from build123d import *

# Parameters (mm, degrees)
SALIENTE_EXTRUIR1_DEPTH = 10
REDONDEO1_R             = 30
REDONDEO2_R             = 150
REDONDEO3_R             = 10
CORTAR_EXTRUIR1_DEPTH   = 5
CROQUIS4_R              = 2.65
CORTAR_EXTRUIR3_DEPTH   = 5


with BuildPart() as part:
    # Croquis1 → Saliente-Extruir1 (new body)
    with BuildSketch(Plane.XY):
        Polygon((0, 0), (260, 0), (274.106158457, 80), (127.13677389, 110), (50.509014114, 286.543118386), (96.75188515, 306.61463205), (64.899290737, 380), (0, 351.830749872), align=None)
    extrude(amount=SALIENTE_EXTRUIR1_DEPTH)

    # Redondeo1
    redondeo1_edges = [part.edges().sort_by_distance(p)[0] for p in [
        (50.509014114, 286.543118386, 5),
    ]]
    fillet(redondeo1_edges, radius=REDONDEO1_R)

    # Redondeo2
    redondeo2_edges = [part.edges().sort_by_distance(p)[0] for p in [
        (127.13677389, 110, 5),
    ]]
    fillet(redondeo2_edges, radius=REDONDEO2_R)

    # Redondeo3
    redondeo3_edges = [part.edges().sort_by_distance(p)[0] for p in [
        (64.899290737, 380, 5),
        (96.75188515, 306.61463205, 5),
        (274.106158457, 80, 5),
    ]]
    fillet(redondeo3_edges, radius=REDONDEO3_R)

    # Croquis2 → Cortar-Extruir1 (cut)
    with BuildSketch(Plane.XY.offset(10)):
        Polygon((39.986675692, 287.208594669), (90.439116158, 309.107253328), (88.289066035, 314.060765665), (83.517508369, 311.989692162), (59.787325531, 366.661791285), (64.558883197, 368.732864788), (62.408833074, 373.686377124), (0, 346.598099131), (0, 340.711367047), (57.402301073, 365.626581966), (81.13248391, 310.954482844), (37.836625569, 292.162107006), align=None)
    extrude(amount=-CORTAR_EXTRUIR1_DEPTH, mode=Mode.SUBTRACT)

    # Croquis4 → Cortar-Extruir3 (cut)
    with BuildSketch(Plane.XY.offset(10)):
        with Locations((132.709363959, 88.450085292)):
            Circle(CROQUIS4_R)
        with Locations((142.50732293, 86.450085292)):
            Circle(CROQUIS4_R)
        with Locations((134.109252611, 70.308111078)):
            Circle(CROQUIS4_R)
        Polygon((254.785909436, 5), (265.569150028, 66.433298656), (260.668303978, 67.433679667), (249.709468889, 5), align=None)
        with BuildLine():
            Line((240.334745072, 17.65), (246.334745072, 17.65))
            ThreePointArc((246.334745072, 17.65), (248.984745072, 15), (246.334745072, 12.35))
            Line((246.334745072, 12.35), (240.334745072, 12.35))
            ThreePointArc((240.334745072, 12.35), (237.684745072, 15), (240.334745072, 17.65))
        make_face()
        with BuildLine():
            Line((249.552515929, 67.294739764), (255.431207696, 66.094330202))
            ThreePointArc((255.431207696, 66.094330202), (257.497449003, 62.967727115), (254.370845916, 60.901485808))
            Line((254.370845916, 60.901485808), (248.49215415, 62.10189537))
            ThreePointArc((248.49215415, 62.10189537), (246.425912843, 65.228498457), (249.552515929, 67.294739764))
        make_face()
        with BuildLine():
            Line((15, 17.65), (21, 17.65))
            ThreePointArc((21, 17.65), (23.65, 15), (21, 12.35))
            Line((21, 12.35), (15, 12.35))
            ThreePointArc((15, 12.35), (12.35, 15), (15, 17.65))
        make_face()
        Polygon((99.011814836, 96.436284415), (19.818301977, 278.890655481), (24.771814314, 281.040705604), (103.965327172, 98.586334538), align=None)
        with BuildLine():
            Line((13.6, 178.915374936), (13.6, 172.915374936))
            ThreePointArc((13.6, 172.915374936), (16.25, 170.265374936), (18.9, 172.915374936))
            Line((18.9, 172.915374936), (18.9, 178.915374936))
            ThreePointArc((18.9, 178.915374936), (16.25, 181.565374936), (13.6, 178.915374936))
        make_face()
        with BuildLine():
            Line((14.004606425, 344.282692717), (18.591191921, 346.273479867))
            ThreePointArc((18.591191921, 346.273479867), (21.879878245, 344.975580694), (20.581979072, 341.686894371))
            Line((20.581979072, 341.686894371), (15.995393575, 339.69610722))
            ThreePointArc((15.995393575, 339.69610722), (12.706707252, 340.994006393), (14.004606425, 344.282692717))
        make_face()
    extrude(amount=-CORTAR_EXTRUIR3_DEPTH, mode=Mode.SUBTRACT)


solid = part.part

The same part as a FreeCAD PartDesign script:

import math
import FreeCAD as App
import Part
import Sketcher
from FreeCAD import Vector
Q = App.Units.Quantity


def edges_at(feature, points):
    """Names of the edges that pass closest to the given points."""
    edges = feature.Shape.Edges
    near = lambda p: min(range(len(edges)), key=lambda i: edges[i].distToShape(Part.Vertex(*p))[0])
    return sorted({f"Edge{near(p) + 1}" for p in points})

doc = App.newDocument("Part")
body = doc.addObject("PartDesign::Body", "Body")

# Sketch on XY plane
sketch1 = body.newObject("Sketcher::SketchObject", "Sketch")
sketch1.AttachmentSupport = (doc.getObject("XY_Plane"), [""])
sketch1.MapMode = "FlatFace"
sketch1.addGeometry([
    Part.LineSegment(Vector(0, 0, 0), Vector(260, 0, 0)),  # 0
    Part.LineSegment(Vector(260, 0, 0), Vector(274, 80, 0)),  # 1
    Part.LineSegment(Vector(274, 80, 0), Vector(127, 110, 0)),  # 2
    Part.LineSegment(Vector(127, 110, 0), Vector(51, 287, 0)),  # 3
    Part.LineSegment(Vector(51, 287, 0), Vector(97, 307, 0)),  # 4
    Part.LineSegment(Vector(97, 307, 0), Vector(65, 380, 0)),  # 5
    Part.LineSegment(Vector(65, 380, 0), Vector(0, 352, 0)),  # 6
    Part.LineSegment(Vector(0, 352, 0), Vector(0, 0, 0)),  # 7
], False)
sketch1.addConstraint([
    Sketcher.Constraint("Coincident", 0, 2, 1, 1),
    Sketcher.Constraint("Coincident", 1, 2, 2, 1),
    Sketcher.Constraint("Coincident", 2, 2, 3, 1),
    Sketcher.Constraint("Coincident", 3, 2, 4, 1),
    Sketcher.Constraint("Coincident", 4, 2, 5, 1),
    Sketcher.Constraint("Coincident", 5, 2, 6, 1),
    Sketcher.Constraint("Coincident", 6, 2, 7, 1),
    Sketcher.Constraint("Coincident", 7, 2, 0, 1),
    Sketcher.Constraint("Horizontal", 0),
    Sketcher.Constraint("Vertical", 7),
    Sketcher.Constraint("Coincident", 7, 2, -1, 1),
    Sketcher.Constraint("Perpendicular", 3, 4),
    Sketcher.Constraint("Perpendicular", 4, 5),
    Sketcher.Constraint("Perpendicular", 5, 6),
    Sketcher.Constraint("DistanceX", 0, 1, 0, 2, 260.0),
    Sketcher.Constraint("Angle", 1, Q("80 deg")),
    Sketcher.Constraint("Distance", 2, 150.0),
    Sketcher.Constraint("Distance", 5, 80.0),
    Sketcher.Constraint("DistanceY", -1, 1, 1, 2, 80.0),
    Sketcher.Constraint("DistanceY", -1, 1, 2, 2, 110.0),
    Sketcher.Constraint("DistanceY", -1, 1, 5, 2, 380.0),
    Sketcher.Constraint("Distance", 4, 50.410999),
    Sketcher.Constraint("DistanceY", 7, 2, 7, 1, 351.83075),
])
pad1 = body.newObject("PartDesign::Pad", "Pad")
pad1.Profile = sketch1
pad1.Length = 10
doc.recompute()

fillet = body.newObject("PartDesign::Fillet", "Fillet")
fillet.Base = (pad1, edges_at(pad1, [(50.509, 286.543, 5)]))
fillet.Radius = 30
doc.recompute()

fillet2 = body.newObject("PartDesign::Fillet", "Fillet001")
fillet2.Base = (fillet, edges_at(fillet, [(127.137, 110, 5)]))
fillet2.Radius = 150
doc.recompute()

fillet3 = body.newObject("PartDesign::Fillet", "Fillet002")
fillet3.Base = (fillet2, edges_at(fillet2, [(64.899, 380, 5), (96.752, 306.615, 5), (274.106, 80, 5)]))
fillet3.Radius = 10

# Sketch on XY plane
sketch2 = body.newObject("Sketcher::SketchObject", "Sketch001")
sketch2.AttachmentSupport = (doc.getObject("XY_Plane"), [""])
sketch2.MapMode = "FlatFace"
sketch2.AttachmentOffset = App.Placement(Vector(0, 0, 10), App.Rotation())
sketch2.addGeometry([
    Part.LineSegment(Vector(40, 287, 0), Vector(90, 309, 0)),  # 0
    Part.LineSegment(Vector(90, 309, 0), Vector(88, 314, 0)),  # 1
    Part.LineSegment(Vector(88, 314, 0), Vector(84, 312, 0)),  # 2
    Part.LineSegment(Vector(84, 312, 0), Vector(60, 367, 0)),  # 3
    Part.LineSegment(Vector(60, 367, 0), Vector(65, 369, 0)),  # 4
    Part.LineSegment(Vector(65, 369, 0), Vector(62, 374, 0)),  # 5
    Part.LineSegment(Vector(62, 374, 0), Vector(0, 347, 0)),  # 6
    Part.LineSegment(Vector(0, 347, 0), Vector(0, 341, 0)),  # 7
    Part.LineSegment(Vector(0, 341, 0), Vector(57, 366, 0)),  # 8
    Part.LineSegment(Vector(57, 366, 0), Vector(81, 311, 0)),  # 9
    Part.LineSegment(Vector(81, 311, 0), Vector(38, 292, 0)),  # 10
    Part.LineSegment(Vector(38, 292, 0), Vector(40, 287, 0)),  # 11
], False)
sketch2.addConstraint([
    Sketcher.Constraint("Coincident", 0, 2, 1, 1),
    Sketcher.Constraint("Coincident", 1, 2, 2, 1),
    Sketcher.Constraint("Coincident", 2, 2, 3, 1),
    Sketcher.Constraint("Coincident", 3, 2, 4, 1),
    Sketcher.Constraint("Coincident", 4, 2, 5, 1),
    Sketcher.Constraint("Coincident", 5, 2, 6, 1),
    Sketcher.Constraint("Coincident", 6, 2, 7, 1),
    Sketcher.Constraint("Coincident", 7, 2, 8, 1),
    Sketcher.Constraint("Coincident", 8, 2, 9, 1),
    Sketcher.Constraint("Coincident", 9, 2, 10, 1),
    Sketcher.Constraint("Coincident", 10, 2, 11, 1),
    Sketcher.Constraint("Coincident", 11, 2, 0, 1),
    Sketcher.Constraint("Vertical", 7),
    Sketcher.Constraint("PointOnObject", 6, 2, -2),
    Sketcher.Constraint("Perpendicular", 0, 1),
    Sketcher.Constraint("Perpendicular", 1, 2),
    Sketcher.Constraint("Perpendicular", 2, 3),
    Sketcher.Constraint("Perpendicular", 3, 4),
    Sketcher.Constraint("Perpendicular", 4, 5),
    Sketcher.Constraint("Perpendicular", 5, 6),
    Sketcher.Constraint("Parallel", 6, 8),
    Sketcher.Constraint("Perpendicular", 8, 9),
    Sketcher.Constraint("Perpendicular", 9, 10),
    Sketcher.Constraint("Perpendicular", 10, 11),
    Sketcher.Constraint("Equal", 2, 4),
    Sketcher.Constraint("Equal", 1, 5),
    Sketcher.Constraint("Equal", 3, 9),
    Sketcher.Constraint("Equal", 5, 11),
    Sketcher.Constraint("Distance", 0, 55.0),
    Sketcher.Constraint("Distance", 1, 5.4),
    Sketcher.Constraint("Distance", 3, 59.6),
    Sketcher.Constraint("DistanceY", -1, 1, 6, 2, 346.598099),
    Sketcher.Constraint("DistanceX", -1, 1, 8, 2, 57.402301),
    Sketcher.Constraint("DistanceY", 2, 2, 3, 2, 54.672099),
    Sketcher.Constraint("Distance", 6, 68.034089),
    Sketcher.Constraint("DistanceX", -1, 1, 2, 2, 83.517508),
])
pocket1 = body.newObject("PartDesign::Pocket", "Pocket")
pocket1.Profile = sketch2
pocket1.Length = 5

# Sketch on XY plane
sketch3 = body.newObject("Sketcher::SketchObject", "Sketch002")
sketch3.AttachmentSupport = (doc.getObject("XY_Plane"), [""])
sketch3.MapMode = "FlatFace"
sketch3.AttachmentOffset = App.Placement(Vector(0, 0, 10), App.Rotation())
sketch3.addGeometry([
    Part.Circle(Vector(132.7, 88.5, 0), Vector(0, 0, 1), 2.6),  # 0
    Part.Circle(Vector(142.5, 86.5, 0), Vector(0, 0, 1), 2.6),  # 1
    Part.Circle(Vector(134.1, 70.3, 0), Vector(0, 0, 1), 2.6),  # 2
    Part.LineSegment(Vector(254.8, 5, 0), Vector(265.6, 66.4, 0)),  # 3
    Part.LineSegment(Vector(265.6, 66.4, 0), Vector(260.7, 67.4, 0)),  # 4
    Part.LineSegment(Vector(260.7, 67.4, 0), Vector(249.7, 5, 0)),  # 5
    Part.LineSegment(Vector(249.7, 5, 0), Vector(254.8, 5, 0)),  # 6
    Part.LineSegment(Vector(246.3, 17.6, 0), Vector(240.3, 17.6, 0)),  # 7
    Part.ArcOfCircle(Part.Circle(Vector(240.3, 15, 0), Vector(0, 0, 1), 2.6), math.radians(90), math.radians(270)),  # 8
    Part.LineSegment(Vector(240.3, 12.3, 0), Vector(246.3, 12.3, 0)),  # 9
    Part.ArcOfCircle(Part.Circle(Vector(246.3, 15, 0), Vector(0, 0, 1), 2.6), math.radians(-90), math.radians(90)),  # 10
    Part.LineSegment(Vector(255.4, 66.1, 0), Vector(249.6, 67.3, 0)),  # 11
    Part.ArcOfCircle(Part.Circle(Vector(249, 64.7, 0), Vector(0, 0, 1), 2.6), math.radians(78), math.radians(258)),  # 12
    Part.LineSegment(Vector(248.5, 62.1, 0), Vector(254.4, 60.9, 0)),  # 13
    Part.ArcOfCircle(Part.Circle(Vector(254.9, 63.5, 0), Vector(0, 0, 1), 2.6), math.radians(-102), math.radians(78)),  # 14
    Part.LineSegment(Vector(21, 17.6, 0), Vector(15, 17.6, 0)),  # 15
    Part.ArcOfCircle(Part.Circle(Vector(15, 15, 0), Vector(0, 0, 1), 2.6), math.radians(90), math.radians(270)),  # 16
    Part.LineSegment(Vector(15, 12.3, 0), Vector(21, 12.3, 0)),  # 17
    Part.ArcOfCircle(Part.Circle(Vector(21, 15, 0), Vector(0, 0, 1), 2.6), math.radians(-90), math.radians(90)),  # 18
    Part.LineSegment(Vector(19.8, 278.9, 0), Vector(99, 96.4, 0)),  # 19
    Part.LineSegment(Vector(99, 96.4, 0), Vector(104, 98.6, 0)),  # 20
    Part.LineSegment(Vector(104, 98.6, 0), Vector(24.8, 281, 0)),  # 21
    Part.LineSegment(Vector(24.8, 281, 0), Vector(19.8, 278.9, 0)),  # 22
    Part.LineSegment(Vector(13.6, 178.9, 0), Vector(13.6, 172.9, 0)),  # 23
    Part.ArcOfCircle(Part.Circle(Vector(16.2, 172.9, 0), Vector(0, 0, 1), 2.6), math.radians(180), math.radians(360)),  # 24
    Part.LineSegment(Vector(18.9, 172.9, 0), Vector(18.9, 178.9, 0)),  # 25
    Part.ArcOfCircle(Part.Circle(Vector(16.2, 178.9, 0), Vector(0, 0, 1), 2.6), math.radians(0), math.radians(180)),  # 26
    Part.LineSegment(Vector(18.6, 346.3, 0), Vector(14, 344.3, 0)),  # 27
    Part.ArcOfCircle(Part.Circle(Vector(15, 342, 0), Vector(0, 0, 1), 2.5), math.radians(113), math.radians(293)),  # 28
    Part.LineSegment(Vector(16, 339.7, 0), Vector(20.6, 341.7, 0)),  # 29
    Part.ArcOfCircle(Part.Circle(Vector(19.6, 344, 0), Vector(0, 0, 1), 2.5), math.radians(-67), math.radians(113)),  # 30
], False)
sketch3.addConstraint([
    Sketcher.Constraint("Coincident", 3, 2, 4, 1),
    Sketcher.Constraint("Coincident", 4, 2, 5, 1),
    Sketcher.Constraint("Coincident", 5, 2, 6, 1),
    Sketcher.Constraint("Coincident", 6, 2, 3, 1),
    Sketcher.Constraint("Tangent", 7, 2, 8, 1),
    Sketcher.Constraint("Tangent", 8, 2, 9, 1),
    Sketcher.Constraint("Tangent", 9, 2, 10, 1),
    Sketcher.Constraint("Tangent", 10, 2, 7, 1),
    Sketcher.Constraint("Tangent", 11, 2, 12, 1),
    Sketcher.Constraint("Tangent", 12, 2, 13, 1),
    Sketcher.Constraint("Tangent", 13, 2, 14, 1),
    Sketcher.Constraint("Tangent", 14, 2, 11, 1),
    Sketcher.Constraint("Tangent", 15, 2, 16, 1),
    Sketcher.Constraint("Tangent", 16, 2, 17, 1),
    Sketcher.Constraint("Tangent", 17, 2, 18, 1),
    Sketcher.Constraint("Tangent", 18, 2, 15, 1),
    Sketcher.Constraint("Coincident", 19, 2, 20, 1),
    Sketcher.Constraint("Coincident", 20, 2, 21, 1),
    Sketcher.Constraint("Coincident", 21, 2, 22, 1),
    Sketcher.Constraint("Coincident", 22, 2, 19, 1),
    Sketcher.Constraint("Tangent", 23, 2, 24, 1),
    Sketcher.Constraint("Tangent", 24, 2, 25, 1),
    Sketcher.Constraint("Tangent", 25, 2, 26, 1),
    Sketcher.Constraint("Tangent", 26, 2, 23, 1),
    Sketcher.Constraint("Tangent", 27, 2, 28, 1),
    Sketcher.Constraint("Tangent", 28, 2, 29, 1),
    Sketcher.Constraint("Tangent", 29, 2, 30, 1),
    Sketcher.Constraint("Tangent", 30, 2, 27, 1),
    Sketcher.Constraint("Horizontal", 6),
    Sketcher.Constraint("Horizontal", 7),
    Sketcher.Constraint("Horizontal", 9),
    Sketcher.Constraint("Horizontal", 15),
    Sketcher.Constraint("Horizontal", 17),
    Sketcher.Constraint("Vertical", 23),
    Sketcher.Constraint("Vertical", 25),
    Sketcher.Constraint("Equal", 0, 1),
    Sketcher.Constraint("Equal", 1, 2),
    Sketcher.Constraint("Equal", 2, 8),
    Sketcher.Constraint("Equal", 10, 12),
    Sketcher.Constraint("Equal", 12, 14),
    Sketcher.Constraint("Equal", 14, 16),
    Sketcher.Constraint("Equal", 18, 24),
    Sketcher.Constraint("Equal", 28, 30),
    Sketcher.Constraint("Parallel", 3, 5),
    Sketcher.Constraint("Perpendicular", 19, 20),
    Sketcher.Constraint("Perpendicular", 20, 21),
    Sketcher.Constraint("Perpendicular", 21, 22),
    Sketcher.Constraint("Parallel", 22, 27),
    Sketcher.Constraint("Horizontal", 10, 3, 16, 3),
    Sketcher.Constraint("Vertical", 16, 3, 28, 3),
    Sketcher.Constraint("Equal", 9, 15),
    Sketcher.Constraint("Equal", 17, 23),
    Sketcher.Constraint("Diameter", 0, 5.3),
    Sketcher.Constraint("Radius", 28, 2.5),
    Sketcher.Constraint("DistanceX", 7, 2, 7, 1, 6.0),
    Sketcher.Constraint("Distance", 11, 6.0),
    Sketcher.Constraint("Distance", 27, 5.0),
    Sketcher.Constraint("DistanceY", -1, 1, 8, 3, 15.0),
    Sketcher.Constraint("DistanceX", -1, 1, 16, 3, 15.0),
    Sketcher.Constraint("DistanceY", -1, 1, 5, 2, 5.0),
    Sketcher.Constraint("DistanceY", 1, 3, 0, 3, 2.0),
    Sketcher.Constraint("Distance", 19, 198.9),
    Sketcher.Constraint("Distance", 20, 5.4),
    Sketcher.Constraint("DistanceX", -1, 1, 23, 2, 13.6),
    Sketcher.Constraint("DistanceX", 6, 1, 6, 2, 5.076441),
    Sketcher.Constraint("DistanceY", -1, 1, 28, 3, 341.9894),
    Sketcher.Constraint("DistanceY", -1, 1, 3, 2, 66.433299),
    Sketcher.Constraint("DistanceX", -1, 1, 22, 2, 19.818302),
    Sketcher.Constraint("DistanceY", 0, 3, 30, 3, 255.530102),
    Sketcher.Constraint("DistanceY", 0, 3, 19, 2, 7.986199),
    Sketcher.Constraint("DistanceY", 21, 2, 28, 2, 58.655402),
    Sketcher.Constraint("DistanceY", -1, 1, 2, 3, 70.308111),
    Sketcher.Constraint("DistanceY", -1, 1, 14, 3, 63.497908),
    Sketcher.Constraint("DistanceX", -1, 1, 3, 2, 265.56915),
    Sketcher.Constraint("DistanceY", -1, 1, 4, 2, 67.43368),
    Sketcher.Constraint("DistanceX", -1, 1, 5, 2, 249.709469),
    Sketcher.Constraint("DistanceY", -1, 1, 11, 2, 67.29474),
    Sketcher.Constraint("DistanceX", 0, 3, 1, 3, 9.797959),
    Sketcher.Constraint("DistanceX", 2, 3, 1, 3, 8.39807),
    Sketcher.Constraint("DistanceX", 0, 3, 8, 3, 107.625381),
    Sketcher.Constraint("DistanceX", 10, 3, 12, 3, 2.68759),
    Sketcher.Constraint("DistanceY", 0, 3, 24, 3, 84.46529),
    Sketcher.Constraint("DistanceX", 30, 3, 0, 3, 113.122778),
])
pocket2 = body.newObject("PartDesign::Pocket", "Pocket001")
pocket2.Profile = sketch3
pocket2.Length = 5

doc.recompute()
